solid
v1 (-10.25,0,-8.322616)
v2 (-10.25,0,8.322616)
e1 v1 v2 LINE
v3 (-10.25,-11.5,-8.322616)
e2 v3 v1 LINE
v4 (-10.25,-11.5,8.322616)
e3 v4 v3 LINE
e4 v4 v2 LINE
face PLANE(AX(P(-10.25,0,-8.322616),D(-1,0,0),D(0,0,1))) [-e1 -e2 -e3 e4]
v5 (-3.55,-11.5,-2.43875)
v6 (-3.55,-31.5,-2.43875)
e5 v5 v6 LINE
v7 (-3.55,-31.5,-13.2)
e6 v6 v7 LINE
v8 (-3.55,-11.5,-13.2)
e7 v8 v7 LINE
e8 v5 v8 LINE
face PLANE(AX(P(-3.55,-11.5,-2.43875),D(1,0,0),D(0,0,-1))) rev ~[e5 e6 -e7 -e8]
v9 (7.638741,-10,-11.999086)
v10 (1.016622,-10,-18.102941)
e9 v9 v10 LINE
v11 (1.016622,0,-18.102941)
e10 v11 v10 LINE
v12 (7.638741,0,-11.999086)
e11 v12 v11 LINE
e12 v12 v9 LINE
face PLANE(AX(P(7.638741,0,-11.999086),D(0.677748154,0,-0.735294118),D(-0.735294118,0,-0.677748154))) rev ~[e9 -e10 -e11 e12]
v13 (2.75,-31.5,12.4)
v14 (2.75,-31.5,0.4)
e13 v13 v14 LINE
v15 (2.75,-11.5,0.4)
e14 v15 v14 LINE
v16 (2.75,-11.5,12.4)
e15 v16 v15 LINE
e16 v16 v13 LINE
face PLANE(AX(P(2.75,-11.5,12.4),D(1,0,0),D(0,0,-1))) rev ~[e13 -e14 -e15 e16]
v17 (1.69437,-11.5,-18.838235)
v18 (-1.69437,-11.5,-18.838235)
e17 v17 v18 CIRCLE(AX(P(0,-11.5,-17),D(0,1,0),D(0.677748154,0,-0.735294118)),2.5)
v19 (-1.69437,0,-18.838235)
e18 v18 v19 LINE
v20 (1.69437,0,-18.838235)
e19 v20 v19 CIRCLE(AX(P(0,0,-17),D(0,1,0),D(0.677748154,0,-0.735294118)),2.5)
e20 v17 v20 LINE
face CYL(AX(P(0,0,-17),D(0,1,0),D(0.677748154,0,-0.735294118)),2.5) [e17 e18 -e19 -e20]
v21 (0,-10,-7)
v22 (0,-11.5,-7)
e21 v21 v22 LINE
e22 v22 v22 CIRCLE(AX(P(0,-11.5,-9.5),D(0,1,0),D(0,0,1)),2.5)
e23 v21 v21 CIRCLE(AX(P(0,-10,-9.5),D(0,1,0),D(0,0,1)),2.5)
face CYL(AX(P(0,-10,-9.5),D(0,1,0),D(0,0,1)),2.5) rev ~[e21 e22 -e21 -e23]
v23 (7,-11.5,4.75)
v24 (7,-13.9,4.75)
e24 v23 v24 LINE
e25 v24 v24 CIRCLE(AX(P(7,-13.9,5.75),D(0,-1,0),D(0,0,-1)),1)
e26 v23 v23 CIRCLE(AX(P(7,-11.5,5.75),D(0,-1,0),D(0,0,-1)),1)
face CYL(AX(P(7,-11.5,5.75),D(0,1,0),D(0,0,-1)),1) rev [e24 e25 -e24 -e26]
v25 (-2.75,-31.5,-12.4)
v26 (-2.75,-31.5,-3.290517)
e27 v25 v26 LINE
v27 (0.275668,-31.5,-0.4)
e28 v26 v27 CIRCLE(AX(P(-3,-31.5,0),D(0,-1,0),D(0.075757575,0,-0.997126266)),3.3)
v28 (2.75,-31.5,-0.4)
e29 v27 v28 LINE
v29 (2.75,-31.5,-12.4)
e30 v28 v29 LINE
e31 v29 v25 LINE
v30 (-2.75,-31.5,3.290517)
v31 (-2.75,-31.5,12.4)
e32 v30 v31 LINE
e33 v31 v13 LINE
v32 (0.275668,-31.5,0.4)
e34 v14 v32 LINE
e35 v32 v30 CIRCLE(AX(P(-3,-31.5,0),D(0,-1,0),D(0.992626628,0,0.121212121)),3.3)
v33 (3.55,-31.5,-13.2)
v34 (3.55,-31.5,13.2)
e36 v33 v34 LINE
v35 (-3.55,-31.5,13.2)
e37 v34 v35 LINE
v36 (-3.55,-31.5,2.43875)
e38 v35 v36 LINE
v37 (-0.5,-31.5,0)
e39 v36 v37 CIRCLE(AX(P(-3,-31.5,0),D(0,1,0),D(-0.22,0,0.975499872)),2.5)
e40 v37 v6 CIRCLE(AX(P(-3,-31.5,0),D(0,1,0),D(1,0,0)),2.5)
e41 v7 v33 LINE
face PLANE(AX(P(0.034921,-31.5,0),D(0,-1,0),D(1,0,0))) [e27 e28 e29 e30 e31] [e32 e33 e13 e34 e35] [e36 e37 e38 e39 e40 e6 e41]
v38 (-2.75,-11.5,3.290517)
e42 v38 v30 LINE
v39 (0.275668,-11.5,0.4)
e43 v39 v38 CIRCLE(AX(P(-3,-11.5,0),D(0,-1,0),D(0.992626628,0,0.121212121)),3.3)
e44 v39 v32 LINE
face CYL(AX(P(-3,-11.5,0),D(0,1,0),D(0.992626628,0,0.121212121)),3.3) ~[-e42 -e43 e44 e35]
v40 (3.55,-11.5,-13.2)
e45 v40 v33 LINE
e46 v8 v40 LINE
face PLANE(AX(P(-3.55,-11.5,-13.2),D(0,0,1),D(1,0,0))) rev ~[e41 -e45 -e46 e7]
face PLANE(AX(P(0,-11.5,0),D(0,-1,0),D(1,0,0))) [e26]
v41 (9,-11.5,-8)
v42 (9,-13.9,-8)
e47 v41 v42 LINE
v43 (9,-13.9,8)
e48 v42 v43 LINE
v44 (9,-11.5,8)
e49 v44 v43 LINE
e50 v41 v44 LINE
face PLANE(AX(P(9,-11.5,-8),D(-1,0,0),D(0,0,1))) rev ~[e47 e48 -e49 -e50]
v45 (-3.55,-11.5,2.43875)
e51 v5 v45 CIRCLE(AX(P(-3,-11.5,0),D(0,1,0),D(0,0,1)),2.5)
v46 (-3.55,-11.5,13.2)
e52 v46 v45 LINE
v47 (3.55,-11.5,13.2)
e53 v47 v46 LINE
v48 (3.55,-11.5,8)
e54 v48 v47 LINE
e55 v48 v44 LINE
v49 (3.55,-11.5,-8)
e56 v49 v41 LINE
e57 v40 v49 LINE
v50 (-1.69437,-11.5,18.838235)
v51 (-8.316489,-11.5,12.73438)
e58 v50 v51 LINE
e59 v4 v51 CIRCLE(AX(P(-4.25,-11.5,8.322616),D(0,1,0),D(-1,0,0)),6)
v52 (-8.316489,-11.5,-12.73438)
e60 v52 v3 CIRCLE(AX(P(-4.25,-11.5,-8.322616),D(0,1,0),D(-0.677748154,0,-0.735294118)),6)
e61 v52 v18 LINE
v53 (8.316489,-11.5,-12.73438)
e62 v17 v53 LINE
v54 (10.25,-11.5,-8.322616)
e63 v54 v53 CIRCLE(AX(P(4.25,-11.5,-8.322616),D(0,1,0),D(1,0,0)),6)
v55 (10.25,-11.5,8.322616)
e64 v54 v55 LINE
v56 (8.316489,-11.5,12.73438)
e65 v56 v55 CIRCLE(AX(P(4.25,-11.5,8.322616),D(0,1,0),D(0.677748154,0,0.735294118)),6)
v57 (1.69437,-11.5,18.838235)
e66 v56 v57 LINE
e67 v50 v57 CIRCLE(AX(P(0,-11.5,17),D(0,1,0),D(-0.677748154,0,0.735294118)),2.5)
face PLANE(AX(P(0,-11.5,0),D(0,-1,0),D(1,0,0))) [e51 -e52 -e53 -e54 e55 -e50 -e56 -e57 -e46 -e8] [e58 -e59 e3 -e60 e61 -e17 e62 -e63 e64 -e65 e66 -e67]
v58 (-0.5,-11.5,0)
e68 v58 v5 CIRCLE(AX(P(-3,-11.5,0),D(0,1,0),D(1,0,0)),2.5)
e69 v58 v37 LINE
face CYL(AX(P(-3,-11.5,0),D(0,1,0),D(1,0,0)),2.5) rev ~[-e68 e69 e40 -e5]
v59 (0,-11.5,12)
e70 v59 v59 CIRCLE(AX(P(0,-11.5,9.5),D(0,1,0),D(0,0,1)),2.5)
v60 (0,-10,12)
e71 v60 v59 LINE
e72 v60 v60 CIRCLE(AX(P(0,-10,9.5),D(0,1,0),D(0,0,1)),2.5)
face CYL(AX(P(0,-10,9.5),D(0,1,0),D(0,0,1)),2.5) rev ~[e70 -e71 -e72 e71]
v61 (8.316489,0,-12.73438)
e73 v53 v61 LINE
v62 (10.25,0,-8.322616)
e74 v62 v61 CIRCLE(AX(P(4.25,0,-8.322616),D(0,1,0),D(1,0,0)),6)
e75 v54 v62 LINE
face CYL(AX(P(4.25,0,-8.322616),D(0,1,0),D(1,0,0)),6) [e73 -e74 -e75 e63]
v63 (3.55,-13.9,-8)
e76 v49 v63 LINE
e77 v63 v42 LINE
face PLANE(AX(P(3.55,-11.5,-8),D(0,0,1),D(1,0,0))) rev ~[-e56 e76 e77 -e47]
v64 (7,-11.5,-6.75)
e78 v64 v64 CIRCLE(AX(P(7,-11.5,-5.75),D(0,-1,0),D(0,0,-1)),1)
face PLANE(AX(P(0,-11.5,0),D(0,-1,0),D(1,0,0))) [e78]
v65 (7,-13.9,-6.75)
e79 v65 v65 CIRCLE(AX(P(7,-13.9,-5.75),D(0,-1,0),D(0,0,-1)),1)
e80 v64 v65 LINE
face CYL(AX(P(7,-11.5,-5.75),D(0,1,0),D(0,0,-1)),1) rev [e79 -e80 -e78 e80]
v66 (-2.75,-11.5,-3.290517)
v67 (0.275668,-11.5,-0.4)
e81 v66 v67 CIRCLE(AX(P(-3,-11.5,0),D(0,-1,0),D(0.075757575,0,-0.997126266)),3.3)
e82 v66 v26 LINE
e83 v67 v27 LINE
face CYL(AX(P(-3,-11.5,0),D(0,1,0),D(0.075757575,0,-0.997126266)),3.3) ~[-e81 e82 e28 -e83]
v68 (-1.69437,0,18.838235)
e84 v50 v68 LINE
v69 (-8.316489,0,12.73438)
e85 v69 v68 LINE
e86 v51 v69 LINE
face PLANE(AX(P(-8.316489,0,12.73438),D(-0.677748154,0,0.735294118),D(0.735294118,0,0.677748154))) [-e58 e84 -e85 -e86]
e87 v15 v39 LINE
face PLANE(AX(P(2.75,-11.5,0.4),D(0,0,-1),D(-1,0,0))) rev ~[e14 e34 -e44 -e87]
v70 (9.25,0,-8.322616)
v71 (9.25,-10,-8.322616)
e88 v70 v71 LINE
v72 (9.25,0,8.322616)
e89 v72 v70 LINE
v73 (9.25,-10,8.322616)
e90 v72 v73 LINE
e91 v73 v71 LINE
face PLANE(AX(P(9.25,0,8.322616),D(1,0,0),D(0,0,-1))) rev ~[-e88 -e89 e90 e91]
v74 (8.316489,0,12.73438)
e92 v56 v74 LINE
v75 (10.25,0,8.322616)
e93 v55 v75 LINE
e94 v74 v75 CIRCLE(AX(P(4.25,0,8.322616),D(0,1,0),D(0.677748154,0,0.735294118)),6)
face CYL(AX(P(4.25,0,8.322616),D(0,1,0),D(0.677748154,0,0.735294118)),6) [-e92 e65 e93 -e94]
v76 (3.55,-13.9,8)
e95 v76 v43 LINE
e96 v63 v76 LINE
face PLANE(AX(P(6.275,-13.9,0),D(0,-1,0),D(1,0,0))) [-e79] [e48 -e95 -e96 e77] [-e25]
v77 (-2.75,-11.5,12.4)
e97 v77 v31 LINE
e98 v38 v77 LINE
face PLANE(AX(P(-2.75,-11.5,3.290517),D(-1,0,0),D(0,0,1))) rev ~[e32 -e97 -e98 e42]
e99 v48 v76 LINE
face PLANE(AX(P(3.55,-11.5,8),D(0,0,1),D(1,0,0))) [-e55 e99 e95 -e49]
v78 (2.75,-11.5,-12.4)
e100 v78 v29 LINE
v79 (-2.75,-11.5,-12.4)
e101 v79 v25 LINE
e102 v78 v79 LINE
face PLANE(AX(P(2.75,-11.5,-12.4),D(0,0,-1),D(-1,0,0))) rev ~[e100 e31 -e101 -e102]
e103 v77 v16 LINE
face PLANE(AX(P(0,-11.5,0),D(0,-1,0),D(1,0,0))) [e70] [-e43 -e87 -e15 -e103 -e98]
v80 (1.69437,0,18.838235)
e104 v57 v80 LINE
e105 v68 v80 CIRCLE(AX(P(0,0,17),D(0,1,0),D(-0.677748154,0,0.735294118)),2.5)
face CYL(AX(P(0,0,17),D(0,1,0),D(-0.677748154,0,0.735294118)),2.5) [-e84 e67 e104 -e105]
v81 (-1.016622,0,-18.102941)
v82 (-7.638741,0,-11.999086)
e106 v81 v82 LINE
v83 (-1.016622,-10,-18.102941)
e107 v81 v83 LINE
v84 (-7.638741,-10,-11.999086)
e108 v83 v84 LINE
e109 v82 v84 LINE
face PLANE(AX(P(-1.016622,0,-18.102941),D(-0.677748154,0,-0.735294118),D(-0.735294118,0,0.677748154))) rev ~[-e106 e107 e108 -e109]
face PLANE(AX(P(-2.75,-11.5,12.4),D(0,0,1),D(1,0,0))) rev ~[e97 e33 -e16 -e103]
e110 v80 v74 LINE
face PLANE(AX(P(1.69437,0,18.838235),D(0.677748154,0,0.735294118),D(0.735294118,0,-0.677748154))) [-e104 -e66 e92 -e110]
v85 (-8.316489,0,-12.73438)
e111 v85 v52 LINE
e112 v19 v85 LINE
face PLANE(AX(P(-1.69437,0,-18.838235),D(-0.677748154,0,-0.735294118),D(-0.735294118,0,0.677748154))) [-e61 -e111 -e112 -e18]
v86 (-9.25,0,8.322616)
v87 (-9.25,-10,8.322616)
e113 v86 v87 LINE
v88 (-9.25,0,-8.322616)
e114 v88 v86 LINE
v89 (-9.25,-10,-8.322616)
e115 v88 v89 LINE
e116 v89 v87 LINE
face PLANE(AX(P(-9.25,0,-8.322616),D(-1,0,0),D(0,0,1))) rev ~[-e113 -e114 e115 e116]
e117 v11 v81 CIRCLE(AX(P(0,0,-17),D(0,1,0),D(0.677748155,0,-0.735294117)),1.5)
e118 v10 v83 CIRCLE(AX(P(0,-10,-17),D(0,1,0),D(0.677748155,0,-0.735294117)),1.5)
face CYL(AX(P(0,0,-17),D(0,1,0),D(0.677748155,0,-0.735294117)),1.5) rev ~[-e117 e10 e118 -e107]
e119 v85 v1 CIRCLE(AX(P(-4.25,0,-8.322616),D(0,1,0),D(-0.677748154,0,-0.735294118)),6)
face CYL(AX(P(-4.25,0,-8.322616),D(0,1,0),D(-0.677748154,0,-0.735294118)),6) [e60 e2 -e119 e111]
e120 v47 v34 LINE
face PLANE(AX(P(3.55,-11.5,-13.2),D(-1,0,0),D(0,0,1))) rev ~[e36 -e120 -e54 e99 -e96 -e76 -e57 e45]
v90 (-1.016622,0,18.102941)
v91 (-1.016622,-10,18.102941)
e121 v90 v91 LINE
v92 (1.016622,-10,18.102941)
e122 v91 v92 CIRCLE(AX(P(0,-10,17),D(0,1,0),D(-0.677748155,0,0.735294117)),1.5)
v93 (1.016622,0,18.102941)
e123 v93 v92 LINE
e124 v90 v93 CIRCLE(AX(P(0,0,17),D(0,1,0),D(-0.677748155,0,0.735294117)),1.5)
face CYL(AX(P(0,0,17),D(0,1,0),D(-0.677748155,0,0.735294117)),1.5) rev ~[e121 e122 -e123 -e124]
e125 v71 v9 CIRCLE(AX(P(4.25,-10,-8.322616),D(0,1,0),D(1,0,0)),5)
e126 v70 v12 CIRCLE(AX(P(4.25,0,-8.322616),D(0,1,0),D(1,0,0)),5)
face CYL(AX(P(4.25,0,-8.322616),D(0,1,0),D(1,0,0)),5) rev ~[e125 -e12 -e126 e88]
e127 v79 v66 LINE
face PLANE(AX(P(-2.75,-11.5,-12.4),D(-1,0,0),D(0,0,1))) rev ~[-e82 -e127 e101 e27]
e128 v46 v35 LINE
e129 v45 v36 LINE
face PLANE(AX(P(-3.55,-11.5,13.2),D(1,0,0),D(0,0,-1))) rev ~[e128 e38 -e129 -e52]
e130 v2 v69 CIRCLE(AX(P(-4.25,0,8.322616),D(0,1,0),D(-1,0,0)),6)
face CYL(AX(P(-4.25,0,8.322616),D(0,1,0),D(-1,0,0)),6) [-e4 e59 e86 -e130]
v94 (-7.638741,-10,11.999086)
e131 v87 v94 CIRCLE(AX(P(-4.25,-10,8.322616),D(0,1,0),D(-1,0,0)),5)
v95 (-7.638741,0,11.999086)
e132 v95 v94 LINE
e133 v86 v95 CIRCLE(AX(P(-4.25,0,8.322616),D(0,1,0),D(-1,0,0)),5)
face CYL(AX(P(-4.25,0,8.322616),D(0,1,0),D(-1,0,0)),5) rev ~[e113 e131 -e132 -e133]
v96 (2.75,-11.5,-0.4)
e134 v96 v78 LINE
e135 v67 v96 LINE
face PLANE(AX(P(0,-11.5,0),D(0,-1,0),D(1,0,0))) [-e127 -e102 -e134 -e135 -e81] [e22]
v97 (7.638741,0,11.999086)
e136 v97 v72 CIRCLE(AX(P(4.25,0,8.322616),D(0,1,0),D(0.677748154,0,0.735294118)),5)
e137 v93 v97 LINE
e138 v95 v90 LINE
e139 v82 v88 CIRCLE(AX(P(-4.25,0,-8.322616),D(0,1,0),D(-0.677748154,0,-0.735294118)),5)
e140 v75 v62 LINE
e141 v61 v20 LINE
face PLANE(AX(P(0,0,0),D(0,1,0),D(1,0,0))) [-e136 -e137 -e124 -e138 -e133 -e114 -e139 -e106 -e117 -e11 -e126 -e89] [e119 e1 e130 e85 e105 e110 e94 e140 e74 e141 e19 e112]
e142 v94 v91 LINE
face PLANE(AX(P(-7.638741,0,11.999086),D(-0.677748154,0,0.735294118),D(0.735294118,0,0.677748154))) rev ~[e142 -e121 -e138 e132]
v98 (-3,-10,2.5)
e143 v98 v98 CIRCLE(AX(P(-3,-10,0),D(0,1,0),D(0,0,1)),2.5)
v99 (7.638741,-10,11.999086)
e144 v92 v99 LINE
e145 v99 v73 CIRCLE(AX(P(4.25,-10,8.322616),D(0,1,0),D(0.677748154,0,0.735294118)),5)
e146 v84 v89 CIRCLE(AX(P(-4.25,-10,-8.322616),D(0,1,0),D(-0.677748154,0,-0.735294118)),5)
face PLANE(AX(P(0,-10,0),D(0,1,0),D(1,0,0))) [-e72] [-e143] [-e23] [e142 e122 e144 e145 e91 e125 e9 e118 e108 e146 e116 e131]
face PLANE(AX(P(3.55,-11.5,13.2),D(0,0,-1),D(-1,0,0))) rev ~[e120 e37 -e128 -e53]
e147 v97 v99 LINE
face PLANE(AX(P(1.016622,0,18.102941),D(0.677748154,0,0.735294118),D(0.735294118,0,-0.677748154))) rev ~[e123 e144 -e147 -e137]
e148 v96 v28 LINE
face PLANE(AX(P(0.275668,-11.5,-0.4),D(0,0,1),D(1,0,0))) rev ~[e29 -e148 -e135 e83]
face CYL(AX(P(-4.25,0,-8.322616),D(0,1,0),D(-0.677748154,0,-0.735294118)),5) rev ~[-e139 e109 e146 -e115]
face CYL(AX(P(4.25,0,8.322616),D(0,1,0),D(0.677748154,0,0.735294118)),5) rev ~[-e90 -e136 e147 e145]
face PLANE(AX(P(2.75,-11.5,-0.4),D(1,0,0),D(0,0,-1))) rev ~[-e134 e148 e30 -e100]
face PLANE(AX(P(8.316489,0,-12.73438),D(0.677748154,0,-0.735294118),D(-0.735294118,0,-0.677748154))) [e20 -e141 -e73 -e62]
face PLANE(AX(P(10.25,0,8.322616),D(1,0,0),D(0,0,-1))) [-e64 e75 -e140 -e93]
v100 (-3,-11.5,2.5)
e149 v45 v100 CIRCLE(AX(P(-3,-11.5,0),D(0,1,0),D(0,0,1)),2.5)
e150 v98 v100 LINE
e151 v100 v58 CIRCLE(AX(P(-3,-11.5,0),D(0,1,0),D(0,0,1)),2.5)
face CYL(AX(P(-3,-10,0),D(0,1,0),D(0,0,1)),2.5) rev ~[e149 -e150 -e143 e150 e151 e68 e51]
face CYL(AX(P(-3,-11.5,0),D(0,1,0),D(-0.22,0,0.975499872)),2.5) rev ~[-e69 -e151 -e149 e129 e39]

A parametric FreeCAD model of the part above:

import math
import FreeCAD as App
import Part
import Sketcher
Q = App.Units.Quantity


def add_polygon(sketch, points):
    """Adds a closed chain of lines whose ends are joined by coincident constraints."""
    first, n = sketch.GeometryCount, len(points)
    for a, b in zip(points, points[1:] + points[:1]):
        sketch.addGeometry(Part.LineSegment(App.Vector(*a, 0), App.Vector(*b, 0)), False)
    for i in range(n):
        sketch.addConstraint(Sketcher.Constraint("Coincident", first + i, 2, first + (i + 1) % n, 1))

doc = App.newDocument("Part")
body = doc.addObject("PartDesign::Body", "Body")

# Sketch on XZ plane
sketch1 = body.newObject("Sketcher::SketchObject", "Sketch")
sketch1.AttachmentSupport = (doc.getObject("XZ_Plane"), [""])
sketch1.MapMode = "FlatFace"
add_polygon(sketch1, [(-13.35, -19.65), (-13.35, 19.65), (13.35, 19.65), (13.35, -19.65)])  # lines 0-3
sketch1.addConstraint([
    Sketcher.Constraint("Vertical", 0),
    Sketcher.Constraint("Horizontal", 1),
    Sketcher.Constraint("Vertical", 2),
    Sketcher.Constraint("Horizontal", 3),
    Sketcher.Constraint("Symmetric", 0, 2, 2, 2, -1, 1),
    Sketcher.Constraint("DistanceX", 1, 1, 1, 2, Q("26.7 mm")),
    Sketcher.Constraint("DistanceY", 0, 1, 0, 2, Q("39.3 mm")),
])
pad1 = body.newObject("PartDesign::Pad", "Pad")
pad1.Profile = sketch1
pad1.Length = 38.5

# Sketch on XZ plane
sketch2 = body.newObject("Sketcher::SketchObject", "Sketch001")
sketch2.AttachmentSupport = (doc.getObject("XZ_Plane"), [""])
sketch2.MapMode = "FlatFace"
sketch2.addGeometry([
    Part.LineSegment(App.Vector(1.016622, 18.102941, 0), App.Vector(7.638741, 11.999086, 0)),  # 0
    Part.ArcOfCircle(Part.Circle(App.Vector(4.25, 8.322616, 0), App.Vector(0, 0, 1), 5), math.radians(0), math.radians(47.332075)),  # 1
    Part.LineSegment(App.Vector(9.25, 8.322616, 0), App.Vector(9.25, -8.322616, 0)),  # 2
    Part.ArcOfCircle(Part.Circle(App.Vector(4.25, -8.322616, 0), App.Vector(0, 0, 1), 5), math.radians(-47.332075), math.radians(0)),  # 3
    Part.LineSegment(App.Vector(7.638741, -11.999086, 0), App.Vector(1.016622, -18.102941, 0)),  # 4
    Part.ArcOfCircle(Part.Circle(App.Vector(0, -17, 0), App.Vector(0, 0, 1), 1.5), math.radians(-132.667926), math.radians(-47.332074)),  # 5
    Part.LineSegment(App.Vector(-1.016622, -18.102941, 0), App.Vector(-7.638741, -11.999086, 0)),  # 6
    Part.ArcOfCircle(Part.Circle(App.Vector(-4.25, -8.322616, 0), App.Vector(0, 0, 1), 5), math.radians(180), math.radians(227.332075)),  # 7
    Part.LineSegment(App.Vector(-9.25, -8.322616, 0), App.Vector(-9.25, 8.322616, 0)),  # 8
    Part.ArcOfCircle(Part.Circle(App.Vector(-4.25, 8.322616, 0), App.Vector(0, 0, 1), 5), math.radians(132.667925), math.radians(180)),  # 9
    Part.LineSegment(App.Vector(-7.638741, 11.999086, 0), App.Vector(-1.016622, 18.102941, 0)),  # 10
    Part.ArcOfCircle(Part.Circle(App.Vector(0, 17, 0), App.Vector(0, 0, 1), 1.5), math.radians(47.332074), math.radians(132.667926)),  # 11
], False)
sketch2.addConstraint([
    Sketcher.Constraint("Tangent", 0, 2, 1, 2),
    Sketcher.Constraint("Tangent", 1, 1, 2, 1),
    Sketcher.Constraint("Tangent", 2, 2, 3, 2),
    Sketcher.Constraint("Tangent", 3, 1, 4, 1),
    Sketcher.Constraint("Tangent", 4, 2, 5, 2),
    Sketcher.Constraint("Tangent", 5, 1, 6, 1),
    Sketcher.Constraint("Tangent", 6, 2, 7, 2),
    Sketcher.Constraint("Tangent", 7, 1, 8, 1),
    Sketcher.Constraint("Tangent", 8, 2, 9, 2),
    Sketcher.Constraint("Tangent", 9, 1, 10, 1),
    Sketcher.Constraint("Tangent", 10, 2, 11, 2),
    Sketcher.Constraint("Tangent", 11, 1, 0, 1),
    Sketcher.Constraint("Vertical", 2),
    Sketcher.Constraint("Vertical", 8),
    Sketcher.Constraint("Equal", 1, 3),
    Sketcher.Constraint("Equal", 3, 7),
    Sketcher.Constraint("Equal", 7, 9),
    Sketcher.Constraint("Equal", 5, 11),
    Sketcher.Constraint("Symmetric", 1, 3, 7, 3, -1, 1),
    Sketcher.Constraint("Symmetric", 5, 3, 11, 3, -1, 1),
    Sketcher.Constraint("Symmetric", 4, 2, 5, 1, -2),
    Sketcher.Constraint("Parallel", 4, 10),
    Sketcher.Constraint("Radius", 1, Q("5 mm")),
    Sketcher.Constraint("Radius", 5, Q("1.5 mm")),
    Sketcher.Constraint("DistanceY", 5, 3, -1, 1, Q("17 mm")),
    Sketcher.Constraint("DistanceX", 7, 3, 3, 3, Q("8.5 mm")),
    Sketcher.Constraint("DistanceY", 2, 2, 2, 1, Q("16.645231 mm")),
])
pocket1 = body.newObject("PartDesign::Pocket", "Pocket")
pocket1.Profile = sketch2
pocket1.Length = 10
pocket1.Reversed = True

# Sketch on XZ plane
sketch3 = body.newObject("Sketcher::SketchObject", "Sketch002")
sketch3.AttachmentSupport = (doc.getObject("XZ_Plane"), [""])
sketch3.MapMode = "FlatFace"
add_polygon(sketch3, [(-13.35, -19.65), (-13.35, 19.65), (13.35, 19.65), (13.35, -19.65)])  # lines 0-3
sketch3.addGeometry(Part.ArcOfCircle(Part.Circle(App.Vector(-4.25, -8.322616, 0), App.Vector(0, 0, 1), 6), math.radians(-180), math.radians(-132.667925)), False)  # 4
sketch3.addGeometry(Part.LineSegment(App.Vector(-8.316489, -12.73438, 0), App.Vector(-1.69437, -18.838235, 0)), False)  # 5
sketch3.addGeometry(Part.ArcOfCircle(Part.Circle(App.Vector(0, -17, 0), App.Vector(0, 0, 1), 2.5), math.radians(-132.667925), math.radians(-47.332075)), False)  # 6
sketch3.addGeometry(Part.LineSegment(App.Vector(1.69437, -18.838235, 0), App.Vector(8.316489, -12.73438, 0)), False)  # 7
sketch3.addGeometry(Part.ArcOfCircle(Part.Circle(App.Vector(4.25, -8.322616, 0), App.Vector(0, 0, 1), 6), math.radians(-47.332075), math.radians(0)), False)  # 8
sketch3.addGeometry(Part.LineSegment(App.Vector(10.25, -8.322616, 0), App.Vector(10.25, 8.322616, 0)), False)  # 9
sketch3.addGeometry(Part.ArcOfCircle(Part.Circle(App.Vector(4.25, 8.322616, 0), App.Vector(0, 0, 1), 6), math.radians(0), math.radians(47.332075)), False)  # 10
sketch3.addGeometry(Part.LineSegment(App.Vector(8.316489, 12.73438, 0), App.Vector(1.69437, 18.838235, 0)), False)  # 11
sketch3.addGeometry(Part.ArcOfCircle(Part.Circle(App.Vector(0, 17, 0), App.Vector(0, 0, 1), 2.5), math.radians(47.332075), math.radians(132.667925)), False)  # 12
sketch3.addGeometry(Part.LineSegment(App.Vector(-1.69437, 18.838235, 0), App.Vector(-8.316489, 12.73438, 0)), False)  # 13
sketch3.addGeometry(Part.ArcOfCircle(Part.Circle(App.Vector(-4.25, 8.322616, 0), App.Vector(0, 0, 1), 6), math.radians(132.667925), math.radians(180)), False)  # 14
sketch3.addGeometry(Part.LineSegment(App.Vector(-10.25, 8.322616, 0), App.Vector(-10.25, -8.322616, 0)), False)  # 15
sketch3.addConstraint([
    Sketcher.Constraint("Tangent", 4, 2, 5, 1),
    Sketcher.Constraint("Tangent", 5, 2, 6, 1),
    Sketcher.Constraint("Tangent", 6, 2, 7, 1),
    Sketcher.Constraint("Tangent", 7, 2, 8, 1),
    Sketcher.Constraint("Tangent", 8, 2, 9, 1),
    Sketcher.Constraint("Tangent", 9, 2, 10, 1),
    Sketcher.Constraint("Tangent", 10, 2, 11, 1),
    Sketcher.Constraint("Tangent", 11, 2, 12, 1),
    Sketcher.Constraint("Tangent", 12, 2, 13, 1),
    Sketcher.Constraint("Tangent", 13, 2, 14, 1),
    Sketcher.Constraint("Tangent", 14, 2, 15, 1),
    Sketcher.Constraint("Tangent", 15, 2, 4, 1),
    Sketcher.Constraint("Vertical", 0),
    Sketcher.Constraint("Horizontal", 1),
    Sketcher.Constraint("Vertical", 2),
    Sketcher.Constraint("Horizontal", 3),
    Sketcher.Constraint("Vertical", 9),
    Sketcher.Constraint("Vertical", 15),
    Sketcher.Constraint("Equal", 4, 8),
    Sketcher.Constraint("Equal", 8, 10),
    Sketcher.Constraint("Equal", 6, 12),
    Sketcher.Constraint("Equal", 10, 14),
    Sketcher.Constraint("Symmetric", 4, 3, 10, 3, -1, 1),
    Sketcher.Constraint("Symmetric", 6, 3, 12, 3, -1, 1),
    Sketcher.Constraint("Symmetric", 0, 2, 2, 2, -1, 1),
    Sketcher.Constraint("Symmetric", 5, 2, 6, 2, -2),
    Sketcher.Constraint("Parallel", 7, 13),
    Sketcher.Constraint("Radius", 4, Q("6 mm")),
    Sketcher.Constraint("Radius", 6, Q("2.5 mm")),
    Sketcher.Constraint("DistanceX", 1, 1, 1, 2, Q("26.7 mm")),
    Sketcher.Constraint("DistanceY", 0, 1, 0, 2, Q("39.3 mm")),
    Sketcher.Constraint("DistanceY", 6, 3, -1, 1, Q("17 mm")),
    Sketcher.Constraint("DistanceX", 4, 3, 8, 3, Q("8.5 mm")),
    Sketcher.Constraint("DistanceY", 9, 1, 9, 2, Q("16.645231 mm")),
])
pocket2 = body.newObject("PartDesign::Pocket", "Pocket001")
pocket2.Profile = sketch3
pocket2.Length = 10
pocket2.Reversed = True

# Sketch on XZ plane
sketch4 = body.newObject("Sketcher::SketchObject", "Sketch003")
sketch4.AttachmentSupport = (doc.getObject("XZ_Plane"), [""])
sketch4.MapMode = "FlatFace"
sketch4.AttachmentOffset = App.Placement(App.Vector(0, 0, 38.5), App.Rotation())
add_polygon(sketch4, [(-13.35, 19.65), (-13.35, -19.65), (13.35, -19.65), (13.35, 19.65)])  # lines 0-3
add_polygon(sketch4, [(11.3, -13.5), (-11.3, -13.5), (-11.3, 13.5), (11.3, 13.5)])  # lines 4-7
sketch4.addConstraint([
    Sketcher.Constraint("Vertical", 0),
    Sketcher.Constraint("Horizontal", 1),
    Sketcher.Constraint("Vertical", 2),
    Sketcher.Constraint("Horizontal", 3),
    Sketcher.Constraint("Horizontal", 4),
    Sketcher.Constraint("Vertical", 5),
    Sketcher.Constraint("Horizontal", 6),
    Sketcher.Constraint("Vertical", 7),
    Sketcher.Constraint("Symmetric", 0, 2, 2, 2, -1, 1),
    Sketcher.Constraint("Symmetric", 4, 2, 6, 2, -1, 1),
    Sketcher.Constraint("DistanceY", 5, 1, 5, 2, Q("27 mm")),
    Sketcher.Constraint("DistanceX", 1, 1, 1, 2, Q("26.7 mm")),
    Sketcher.Constraint("DistanceX", 4, 2, 4, 1, Q("22.6 mm")),
    Sketcher.Constraint("DistanceY", 0, 2, 0, 1, Q("39.3 mm")),
])
pocket3 = body.newObject("PartDesign::Pocket", "Pocket002")
pocket3.Profile = sketch4
pocket3.Length = 27

# Sketch on XZ plane
sketch5 = body.newObject("Sketcher::SketchObject", "Sketch004")
sketch5.AttachmentSupport = (doc.getObject("XZ_Plane"), [""])
sketch5.MapMode = "FlatFace"
sketch5.AttachmentOffset = App.Placement(App.Vector(0, 0, 10), App.Rotation())
sketch5.addGeometry([
    Part.Circle(App.Vector(0, 9.5, 0), App.Vector(0, 0, 1), 2.5),
    Part.Circle(App.Vector(0, -9.5, 0), App.Vector(0, 0, 1), 2.5),
    Part.Circle(App.Vector(-3, 0, 0), App.Vector(0, 0, 1), 2.5),
], False)
sketch5.addConstraint([
    Sketcher.Constraint("Equal", 0, 1),
    Sketcher.Constraint("Equal", 1, 2),
    Sketcher.Constraint("Symmetric", 0, 3, 1, 3, -1, 1),
    Sketcher.Constraint("PointOnObject", 0, 3, -2),
    Sketcher.Constraint("PointOnObject", 2, 3, -1),
    Sketcher.Constraint("Diameter", 0, Q("5 mm")),
    Sketcher.Constraint("DistanceX", 2, 3, -1, 1, Q("3 mm")),
    Sketcher.Constraint("DistanceY", 1, 3, 0, 3, Q("19 mm")),
])
pocket4 = body.newObject("PartDesign::Pocket", "Pocket003")
pocket4.Profile = sketch5
pocket4.Length = 5
pocket4.Reversed = True

# Sketch on XZ plane
sketch6 = body.newObject("Sketcher::SketchObject", "Sketch005")
sketch6.AttachmentSupport = (doc.getObject("XZ_Plane"), [""])
sketch6.MapMode = "FlatFace"
sketch6.AttachmentOffset = App.Placement(App.Vector(0, 0, 11.5), App.Rotation())
add_polygon(sketch6, [(11.3, 13.5), (11.3, 12.5), (13.35, 12.5), (13.35, 13.5)])  # lines 0-3
add_polygon(sketch6, [(-13.35, 13.5), (-13.35, 12.5), (-11.3, 12.5), (-11.3, 13.5)])  # lines 4-7
add_polygon(sketch6, [(-13.35, -12.5), (-13.35, -13.5), (-11.3, -13.5), (-11.3, -12.5)])  # lines 8-11
add_polygon(sketch6, [(11.3, -12.5), (11.3, -13.5), (13.35, -13.5), (13.35, -12.5)])  # lines 12-15
sketch6.addConstraint([
    Sketcher.Constraint("Vertical", 0),
    Sketcher.Constraint("Horizontal", 1),
    Sketcher.Constraint("Vertical", 2),
    Sketcher.Constraint("Horizontal", 3),
    Sketcher.Constraint("Vertical", 4),
    Sketcher.Constraint("Horizontal", 5),
    Sketcher.Constraint("Vertical", 6),
    Sketcher.Constraint("Horizontal", 7),
    Sketcher.Constraint("Vertical", 8),
    Sketcher.Constraint("Horizontal", 9),
    Sketcher.Constraint("Vertical", 10),
    Sketcher.Constraint("Horizontal", 11),
    Sketcher.Constraint("Vertical", 12),
    Sketcher.Constraint("Horizontal", 13),
    Sketcher.Constraint("Vertical", 14),
    Sketcher.Constraint("Horizontal", 15),
    Sketcher.Constraint("Symmetric", 2, 2, 8, 2, -1, 1),
    Sketcher.Constraint("Symmetric", 0, 2, 10, 2, -1, 1),
    Sketcher.Constraint("Symmetric", 6, 2, 12, 2, -1, 1),
    Sketcher.Constraint("Symmetric", 4, 2, 14, 2, -1, 1),
    Sketcher.Constraint("Symmetric", 1, 2, 4, 2, -2),
    Sketcher.Constraint("Symmetric", 3, 2, 6, 2, -2),
    Sketcher.Constraint("DistanceY", 0, 2, 0, 1, Q("1 mm")),
    Sketcher.Constraint("DistanceY", 8, 2, 4, 2, Q("26 mm")),
    Sketcher.Constraint("DistanceX", 1, 1, 1, 2, Q("2.05 mm")),
    Sketcher.Constraint("DistanceX", -1, 1, 0, 2, Q("11.3 mm")),
])
pad2 = body.newObject("PartDesign::Pad", "Pad001")
pad2.Profile = sketch6
pad2.Length = 4

# Sketch on YZ plane
sketch7 = body.newObject("Sketcher::SketchObject", "Sketch006")
sketch7.AttachmentSupport = (doc.getObject("YZ_Plane"), [""])
sketch7.MapMode = "FlatFace"
sketch7.AttachmentOffset = App.Placement(App.Vector(0, 0, 11.3), App.Rotation())
add_polygon(sketch7, [(-11.5, 13.5), (-38.5, 13.5), (-38.5, -13.5), (-11.5, -13.5)])  # lines 0-3
sketch7.addConstraint([
    Sketcher.Constraint("Horizontal", 0),
    Sketcher.Constraint("Vertical", 1),
    Sketcher.Constraint("Horizontal", 2),
    Sketcher.Constraint("Vertical", 3),
    Sketcher.Constraint("Equal", 2, 1),
    Sketcher.Constraint("DistanceX", 0, 2, 0, 1, Q("27 mm")),
    Sketcher.Constraint("DistanceX", 0, 2, -1, 1, Q("38.5 mm")),
    Sketcher.Constraint("DistanceY", -1, 1, 0, 2, Q("13.5 mm")),
])
pocket5 = body.newObject("PartDesign::Pocket", "Pocket004")
pocket5.Profile = sketch7
pocket5.Type = "ThroughAll"
pocket5.Midplane = True

# Sketch on XZ plane
sketch8 = body.newObject("Sketcher::SketchObject", "Sketch007")
sketch8.AttachmentSupport = (doc.getObject("XZ_Plane"), [""])
sketch8.MapMode = "FlatFace"
add_polygon(sketch8, [(-13.35, -19.65), (-13.35, 19.65), (13.35, 19.65), (13.35, -19.65)])  # lines 0-3
sketch8.addGeometry(Part.ArcOfCircle(Part.Circle(App.Vector(-4.25, -8.322616, 0), App.Vector(0, 0, 1), 6), math.radians(-180), math.radians(-132.667925)), False)  # 4
sketch8.addGeometry(Part.LineSegment(App.Vector(-8.316489, -12.73438, 0), App.Vector(-1.69437, -18.838235, 0)), False)  # 5
sketch8.addGeometry(Part.ArcOfCircle(Part.Circle(App.Vector(0, -17, 0), App.Vector(0, 0, 1), 2.5), math.radians(-132.667925), math.radians(-47.332075)), False)  # 6
sketch8.addGeometry(Part.LineSegment(App.Vector(1.69437, -18.838235, 0), App.Vector(8.316489, -12.73438, 0)), False)  # 7
sketch8.addGeometry(Part.ArcOfCircle(Part.Circle(App.Vector(4.25, -8.322616, 0), App.Vector(0, 0, 1), 6), math.radians(-47.332075), math.radians(0)), False)  # 8
sketch8.addGeometry(Part.LineSegment(App.Vector(10.25, -8.322616, 0), App.Vector(10.25, 8.322616, 0)), False)  # 9
sketch8.addGeometry(Part.ArcOfCircle(Part.Circle(App.Vector(4.25, 8.322616, 0), App.Vector(0, 0, 1), 6), math.radians(0), math.radians(47.332075)), False)  # 10
sketch8.addGeometry(Part.LineSegment(App.Vector(8.316489, 12.73438, 0), App.Vector(1.69437, 18.838235, 0)), False)  # 11
sketch8.addGeometry(Part.ArcOfCircle(Part.Circle(App.Vector(0, 17, 0), App.Vector(0, 0, 1), 2.5), math.radians(47.332075), math.radians(132.667925)), False)  # 12
sketch8.addGeometry(Part.LineSegment(App.Vector(-1.69437, 18.838235, 0), App.Vector(-8.316489, 12.73438, 0)), False)  # 13
sketch8.addGeometry(Part.ArcOfCircle(Part.Circle(App.Vector(-4.25, 8.322616, 0), App.Vector(0, 0, 1), 6), math.radians(132.667925), math.radians(180)), False)  # 14
sketch8.addGeometry(Part.LineSegment(App.Vector(-10.25, 8.322616, 0), App.Vector(-10.25, -8.322616, 0)), False)  # 15
sketch8.addConstraint([
    Sketcher.Constraint("Tangent", 4, 2, 5, 1),
    Sketcher.Constraint("Tangent", 5, 2, 6, 1),
    Sketcher.Constraint("Tangent", 6, 2, 7, 1),
    Sketcher.Constraint("Tangent", 7, 2, 8, 1),
    Sketcher.Constraint("Tangent", 8, 2, 9, 1),
    Sketcher.Constraint("Tangent", 9, 2, 10, 1),
    Sketcher.Constraint("Tangent", 10, 2, 11, 1),
    Sketcher.Constraint("Tangent", 11, 2, 12, 1),
    Sketcher.Constraint("Tangent", 12, 2, 13, 1),
    Sketcher.Constraint("Tangent", 13, 2, 14, 1),
    Sketcher.Constraint("Tangent", 14, 2, 15, 1),
    Sketcher.Constraint("Tangent", 15, 2, 4, 1),
    Sketcher.Constraint("Vertical", 0),
    Sketcher.Constraint("Horizontal", 1),
    Sketcher.Constraint("Vertical", 2),
    Sketcher.Constraint("Horizontal", 3),
    Sketcher.Constraint("Vertical", 9),
    Sketcher.Constraint("Vertical", 15),
    Sketcher.Constraint("Equal", 4, 8),
    Sketcher.Constraint("Equal", 8, 10),
    Sketcher.Constraint("Equal", 6, 12),
    Sketcher.Constraint("Equal", 10, 14),
    Sketcher.Constraint("Symmetric", 4, 3, 10, 3, -1, 1),
    Sketcher.Constraint("Symmetric", 6, 3, 12, 3, -1, 1),
    Sketcher.Constraint("Symmetric", 0, 2, 2, 2, -1, 1),
    Sketcher.Constraint("Symmetric", 5, 2, 6, 2, -2),
    Sketcher.Constraint("Parallel", 7, 13),
    Sketcher.Constraint("Radius", 4, Q("6 mm")),
    Sketcher.Constraint("Radius", 6, Q("2.5 mm")),
    Sketcher.Constraint("DistanceX", 1, 1, 1, 2, Q("26.7 mm")),
    Sketcher.Constraint("DistanceY", 0, 1, 0, 2, Q("39.3 mm")),
    Sketcher.Constraint("DistanceY", 6, 3, -1, 1, Q("17 mm")),
    Sketcher.Constraint("DistanceX", 4, 3, 8, 3, Q("8.5 mm")),
    Sketcher.Constraint("DistanceY", 9, 1, 9, 2, Q("16.645231 mm")),
])
pocket6 = body.newObject("PartDesign::Pocket", "Pocket005")
pocket6.Profile = sketch8
pocket6.Length = 100
pocket6.Reversed = True

# Sketch on XZ plane
sketch9 = body.newObject("Sketcher::SketchObject", "Sketch008")
sketch9.AttachmentSupport = (doc.getObject("XZ_Plane"), [""])
sketch9.MapMode = "FlatFace"
sketch9.AttachmentOffset = App.Placement(App.Vector(0, 0, 11.5), App.Rotation())
sketch9.addGeometry([
    Part.LineSegment(App.Vector(-3.55, 13.2, 0), App.Vector(-3.55, 2.43875, 0)),  # 0
    Part.ArcOfCircle(Part.Circle(App.Vector(-3, 0, 0), App.Vector(0, 0, 1), 2.5), math.radians(0), math.radians(102.709033)),  # 1
    Part.ArcOfCircle(Part.Circle(App.Vector(-3, 0, 0), App.Vector(0, 0, 1), 2.5), math.radians(-102.709033), math.radians(0)),  # 2
    Part.LineSegment(App.Vector(-3.55, -2.43875, 0), App.Vector(-3.55, -13.2, 0)),  # 3
    Part.LineSegment(App.Vector(-3.55, -13.2, 0), App.Vector(3.55, -13.2, 0)),  # 4
    Part.LineSegment(App.Vector(3.55, -13.2, 0), App.Vector(3.55, 13.2, 0)),  # 5
    Part.LineSegment(App.Vector(3.55, 13.2, 0), App.Vector(-3.55, 13.2, 0)),  # 6
    Part.LineSegment(App.Vector(2.75, -0.4, 0), App.Vector(2.75, -12.4, 0)),  # 7
    Part.LineSegment(App.Vector(2.75, -12.4, 0), App.Vector(-2.75, -12.4, 0)),  # 8
    Part.LineSegment(App.Vector(-2.75, -12.4, 0), App.Vector(-2.75, -3.290517, 0)),  # 9
    Part.ArcOfCircle(Part.Circle(App.Vector(-3, 0, 0), App.Vector(0, 0, 1), 3.3), math.radians(-85.655248), math.radians(-6.962063)),  # 10
    Part.LineSegment(App.Vector(0.275668, -0.4, 0), App.Vector(2.75, -0.4, 0)),  # 11
    Part.LineSegment(App.Vector(-2.75, 12.4, 0), App.Vector(2.75, 12.4, 0)),  # 12
    Part.LineSegment(App.Vector(2.75, 12.4, 0), App.Vector(2.75, 0.4, 0)),  # 13
    Part.LineSegment(App.Vector(2.75, 0.4, 0), App.Vector(0.275668, 0.4, 0)),  # 14
    Part.ArcOfCircle(Part.Circle(App.Vector(-3, 0, 0), App.Vector(0, 0, 1), 3.3), math.radians(6.962063), math.radians(85.655248)),  # 15
    Part.LineSegment(App.Vector(-2.75, 3.290517, 0), App.Vector(-2.75, 12.4, 0)),  # 16
], False)
sketch9.addConstraint([
    Sketcher.Constraint("Coincident", 0, 2, 1, 2),
    Sketcher.Constraint("Tangent", 1, 1, 2, 2),
    Sketcher.Constraint("Coincident", 2, 1, 3, 1),
    Sketcher.Constraint("Coincident", 3, 2, 4, 1),
    Sketcher.Constraint("Coincident", 4, 2, 5, 1),
    Sketcher.Constraint("Coincident", 5, 2, 6, 1),
    Sketcher.Constraint("Coincident", 6, 2, 0, 1),
    Sketcher.Constraint("Coincident", 7, 2, 8, 1),
    Sketcher.Constraint("Coincident", 8, 2, 9, 1),
    Sketcher.Constraint("Coincident", 9, 2, 10, 1),
    Sketcher.Constraint("Coincident", 10, 2, 11, 1),
    Sketcher.Constraint("Coincident", 11, 2, 7, 1),
    Sketcher.Constraint("Coincident", 12, 2, 13, 1),
    Sketcher.Constraint("Coincident", 13, 2, 14, 1),
    Sketcher.Constraint("Coincident", 14, 2, 15, 1),
    Sketcher.Constraint("Coincident", 15, 2, 16, 1),
    Sketcher.Constraint("Coincident", 16, 2, 12, 1),
    Sketcher.Constraint("Vertical", 0),
    Sketcher.Constraint("Vertical", 3),
    Sketcher.Constraint("Horizontal", 4),
    Sketcher.Constraint("Vertical", 5),
    Sketcher.Constraint("Horizontal", 6),
    Sketcher.Constraint("Vertical", 7),
    Sketcher.Constraint("Horizontal", 8),
    Sketcher.Constraint("Vertical", 9),
    Sketcher.Constraint("Horizontal", 11),
    Sketcher.Constraint("Horizontal", 12),
    Sketcher.Constraint("Vertical", 13),
    Sketcher.Constraint("Horizontal", 14),
    Sketcher.Constraint("Vertical", 16),
    Sketcher.Constraint("Coincident", 10, 3, 1, 3),
    Sketcher.Constraint("Coincident", 15, 3, 1, 3),
    Sketcher.Constraint("Equal", 1, 2),
    Sketcher.Constraint("Equal", 10, 15),
    Sketcher.Constraint("Symmetric", 3, 2, 5, 2, -1, 1),
    Sketcher.Constraint("Symmetric", 8, 2, 12, 2, -1, 1),
    Sketcher.Constraint("Symmetric", 0, 2, 2, 1, -1),
    Sketcher.Constraint("Symmetric", 11, 2, 13, 2, -1),
    Sketcher.Constraint("PointOnObject", 1, 1, -1),
    Sketcher.Constraint("Vertical", 9, 2, 15, 2),
    Sketcher.Constraint("Radius", 1, Q("2.5 mm")),
    Sketcher.Constraint("Radius", 10, Q("3.3 mm")),
    Sketcher.Constraint("DistanceY", 7, 2, 7, 1, Q("12 mm")),
    Sketcher.Constraint("DistanceX", 4, 1, 4, 2, Q("7.1 mm")),
    Sketcher.Constraint("DistanceX", 8, 2, 8, 1, Q("5.5 mm")),
    Sketcher.Constraint("DistanceY", 5, 1, 5, 2, Q("26.4 mm")),
    Sketcher.Constraint("DistanceX", 1, 3, -1, 1, Q("3 mm")),
    Sketcher.Constraint("DistanceY", 7, 2, -1, 1, Q("12.4 mm")),
])
pad3 = body.newObject("PartDesign::Pad", "Pad002")
pad3.Profile = sketch9
pad3.Length = 20

# Sketch on XZ plane
sketch10 = body.newObject("Sketcher::SketchObject", "Sketch009")
sketch10.AttachmentSupport = (doc.getObject("XZ_Plane"), [""])
sketch10.MapMode = "FlatFace"
sketch10.AttachmentOffset = App.Placement(App.Vector(0, 0, 11.5), App.Rotation())
add_polygon(sketch10, [(3.55, 8), (3.55, -8), (9, -8), (9, 8)])  # lines 0-3
sketch10.addGeometry(Part.Circle(App.Vector(7, -5.75, 0), App.Vector(0, 0, 1), 1), False)  # 4
sketch10.addGeometry(Part.Circle(App.Vector(7, 5.75, 0), App.Vector(0, 0, 1), 1), False)  # 5
sketch10.addConstraint([
    Sketcher.Constraint("Vertical", 0),
    Sketcher.Constraint("Horizontal", 1),
    Sketcher.Constraint("Vertical", 2),
    Sketcher.Constraint("Horizontal", 3),
    Sketcher.Constraint("Equal", 4, 5),
    Sketcher.Constraint("Symmetric", 4, 3, 5, 3, -1),
    Sketcher.Constraint("Diameter", 4, Q("2 mm")),
    Sketcher.Constraint("DistanceY", 0, 2, 0, 1, Q("16 mm")),
    Sketcher.Constraint("DistanceX", -1, 1, 4, 3, Q("7 mm")),
    Sketcher.Constraint("DistanceY", 0, 2, -1, 1, Q("8 mm")),
    Sketcher.Constraint("DistanceX", -1, 1, 1, 2, Q("9 mm")),
    Sketcher.Constraint("DistanceX", 1, 1, 1, 2, Q("5.45 mm")),
    Sketcher.Constraint("DistanceY", 4, 3, 5, 3, Q("11.5 mm")),
])
pad4 = body.newObject("PartDesign::Pad", "Pad003")
pad4.Profile = sketch10
pad4.Length = 2.4

doc.recompute()
